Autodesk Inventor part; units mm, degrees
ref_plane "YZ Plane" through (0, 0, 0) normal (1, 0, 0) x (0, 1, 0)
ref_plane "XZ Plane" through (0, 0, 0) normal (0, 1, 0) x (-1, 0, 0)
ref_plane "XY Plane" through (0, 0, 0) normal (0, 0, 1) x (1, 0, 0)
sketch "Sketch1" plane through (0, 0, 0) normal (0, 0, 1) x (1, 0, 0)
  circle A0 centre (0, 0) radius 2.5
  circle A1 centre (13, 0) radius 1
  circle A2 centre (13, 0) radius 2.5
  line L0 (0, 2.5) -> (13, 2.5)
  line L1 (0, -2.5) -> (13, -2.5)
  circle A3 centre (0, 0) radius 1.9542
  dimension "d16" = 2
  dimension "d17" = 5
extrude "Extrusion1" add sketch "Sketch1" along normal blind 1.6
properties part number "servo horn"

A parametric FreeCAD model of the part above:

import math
import FreeCAD as App
import Part
import Sketcher
from FreeCAD import Vector

doc = App.newDocument("Part")
body = doc.addObject("PartDesign::Body", "Body")

sketch1 = doc.addObject("Sketcher::SketchObject", "Sketch")
body.addObject(sketch1)
sketch1.AttachmentSupport = (doc.XY_Plane, [""])
sketch1.MapMode = "FlatFace"
sketch1.addGeometry(Part.ArcOfCircle(Part.Circle(Vector(0, 0, 0), Vector(0, 0, 1), 2.5), math.radians(90), math.radians(270)), False)
sketch1.addGeometry(Part.LineSegment(Vector(0, -2.5, 0), Vector(13, -2.5, 0)), False)
sketch1.addGeometry(Part.ArcOfCircle(Part.Circle(Vector(13, 0, 0), Vector(0, 0, 1), 2.5), math.radians(-90), math.radians(90)), False)
sketch1.addGeometry(Part.LineSegment(Vector(13, 2.5, 0), Vector(0, 2.5, 0)), False)
sketch1.addGeometry(Part.Circle(Vector(0, 0, 0), Vector(0, 0, 1), 2), False)
sketch1.addGeometry(Part.Circle(Vector(13, 0, 0), Vector(0, 0, 1), 1), False)
sketch1.addConstraint(Sketcher.Constraint("Tangent", 0, 2, 1, 1))
sketch1.addConstraint(Sketcher.Constraint("Tangent", 1, 2, 2, 1))
sketch1.addConstraint(Sketcher.Constraint("Tangent", 2, 2, 3, 1))
sketch1.addConstraint(Sketcher.Constraint("Tangent", 3, 2, 0, 1))
sketch1.addConstraint(Sketcher.Constraint("Horizontal", 1))
sketch1.addConstraint(Sketcher.Constraint("Horizontal", 3))
sketch1.addConstraint(Sketcher.Constraint("Coincident", 0, 3, -1, 1))
sketch1.addConstraint(Sketcher.Constraint("Coincident", 4, 3, -1, 1))
sketch1.addConstraint(Sketcher.Constraint("Coincident", 5, 3, 2, 3))
sketch1.addConstraint(Sketcher.Constraint("Diameter", 5, 2.0))
sketch1.addConstraint(Sketcher.Constraint("Radius", 0, 2.5))
sketch1.addConstraint(Sketcher.Constraint("DistanceX", 1, 1, 1, 2, 13.0))
sketch1.addConstraint(Sketcher.Constraint("Diameter", 4, 3.9084))
pad1 = doc.addObject("PartDesign::Pad", "Pad")
body.addObject(pad1)
pad1.Profile = sketch1
pad1.Length = 1.6

doc.recompute()
